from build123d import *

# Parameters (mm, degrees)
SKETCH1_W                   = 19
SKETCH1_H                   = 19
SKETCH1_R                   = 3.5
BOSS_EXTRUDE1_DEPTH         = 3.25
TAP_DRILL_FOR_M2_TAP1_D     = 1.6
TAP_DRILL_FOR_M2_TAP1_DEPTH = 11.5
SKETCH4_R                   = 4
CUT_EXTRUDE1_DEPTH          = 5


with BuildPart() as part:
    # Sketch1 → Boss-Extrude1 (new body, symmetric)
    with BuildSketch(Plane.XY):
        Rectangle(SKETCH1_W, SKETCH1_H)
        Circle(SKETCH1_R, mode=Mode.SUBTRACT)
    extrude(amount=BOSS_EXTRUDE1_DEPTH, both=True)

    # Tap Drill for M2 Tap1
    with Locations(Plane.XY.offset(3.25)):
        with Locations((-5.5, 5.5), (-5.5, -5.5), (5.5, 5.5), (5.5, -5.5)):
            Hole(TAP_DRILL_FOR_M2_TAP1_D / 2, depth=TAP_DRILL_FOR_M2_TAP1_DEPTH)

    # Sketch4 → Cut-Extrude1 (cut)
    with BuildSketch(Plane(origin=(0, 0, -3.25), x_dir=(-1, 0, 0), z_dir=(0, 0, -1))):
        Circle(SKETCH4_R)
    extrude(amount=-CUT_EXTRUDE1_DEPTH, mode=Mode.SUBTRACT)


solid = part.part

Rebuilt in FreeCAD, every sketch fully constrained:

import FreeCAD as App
import Part
import Sketcher
from FreeCAD import Vector
Q = App.Units.Quantity

doc = App.newDocument("Part")
body = doc.addObject("PartDesign::Body", "Body")

# Sketch on XY plane
sketch1 = body.newObject("Sketcher::SketchObject", "Sketch")
sketch1.AttachmentSupport = (doc.getObject("XY_Plane"), [""])
sketch1.MapMode = "FlatFace"
sketch1.addGeometry([
    Part.LineSegment(Vector(-9.5, 9.5, 0), Vector(-9.5, -9.5, 0)),  # 0
    Part.LineSegment(Vector(-9.5, -9.5, 0), Vector(9.5, -9.5, 0)),  # 1
    Part.LineSegment(Vector(9.5, -9.5, 0), Vector(9.5, 9.5, 0)),  # 2
    Part.LineSegment(Vector(9.5, 9.5, 0), Vector(-9.5, 9.5, 0)),  # 3
    Part.Circle(Vector(0, 0, 0), Vector(0, 0, 1), 3.5),  # 4
], False)
sketch1.addConstraint([
    Sketcher.Constraint("Coincident", 0, 2, 1, 1),
    Sketcher.Constraint("Coincident", 1, 2, 2, 1),
    Sketcher.Constraint("Coincident", 2, 2, 3, 1),
    Sketcher.Constraint("Coincident", 3, 2, 0, 1),
    Sketcher.Constraint("Vertical", 0),
    Sketcher.Constraint("Horizontal", 1),
    Sketcher.Constraint("Vertical", 2),
    Sketcher.Constraint("Horizontal", 3),
    Sketcher.Constraint("Coincident", 4, 3, -1, 1),
    Sketcher.Constraint("Symmetric", 0, 2, 2, 2, -1, 1),
    Sketcher.Constraint("Equal", 3, 0),
    Sketcher.Constraint("Diameter", 4, Q("7 mm")),
    Sketcher.Constraint("DistanceX", 1, 1, 1, 2, Q("19 mm")),
])
pad1 = body.newObject("PartDesign::Pad", "Pad")
pad1.Profile = sketch1
pad1.Length = 6.5
pad1.Midplane = True

# Sketch on XY plane
sketch2 = body.newObject("Sketcher::SketchObject", "Sketch001")
sketch2.AttachmentSupport = (doc.getObject("XY_Plane"), [""])
sketch2.MapMode = "FlatFace"
sketch2.AttachmentOffset = App.Placement(Vector(0, 0, 3.25), App.Rotation())
sketch2.addGeometry([
    Part.Circle(Vector(-5.5, 5.5, 0), Vector(0, 0, 1), 0.8),
    Part.Circle(Vector(-5.5, -5.5, 0), Vector(0, 0, 1), 0.8),
    Part.Circle(Vector(5.5, 5.5, 0), Vector(0, 0, 1), 0.8),
    Part.Circle(Vector(5.5, -5.5, 0), Vector(0, 0, 1), 0.8),
], False)
sketch2.addConstraint([
    Sketcher.Constraint("Equal", 0, 1),
    Sketcher.Constraint("Equal", 1, 2),
    Sketcher.Constraint("Equal", 2, 3),
    Sketcher.Constraint("Symmetric", 1, 3, 2, 3, -1, 1),
    Sketcher.Constraint("Symmetric", 0, 3, 3, 3, -1, 1),
    Sketcher.Constraint("Symmetric", 0, 3, 2, 3, -2),
    Sketcher.Constraint("Diameter", 0, Q("1.6 mm")),
    Sketcher.Constraint("DistanceY", 1, 3, 0, 3, Q("11 mm")),
    Sketcher.Constraint("DistanceX", 0, 3, 2, 3, Q("11 mm")),
])
doc.recompute()
hole = body.newObject("PartDesign::Hole", "Hole")
hole.Profile = sketch2
hole.ThreadType = "None"
hole.Diameter = 1.6
hole.DepthType = "Dimension"
hole.Depth = 11.5
hole.DrillPoint = "Flat"

# Sketch on XY plane
sketch3 = body.newObject("Sketcher::SketchObject", "Sketch002")
sketch3.AttachmentSupport = (doc.getObject("XY_Plane"), [""])
sketch3.MapMode = "FlatFace"
sketch3.AttachmentOffset = App.Placement(Vector(0, 0, -3.25), App.Rotation())
sketch3.addGeometry(Part.Circle(Vector(0, 0, 0), Vector(0, 0, 1), 4), False)
sketch3.addConstraint([
    Sketcher.Constraint("Coincident", 0, 3, -1, 1),
    Sketcher.Constraint("Diameter", 0, Q("8 mm")),
])
pocket1 = body.newObject("PartDesign::Pocket", "Pocket")
pocket1.Profile = sketch3
pocket1.Length = 5
pocket1.Reversed = True

doc.recompute()
